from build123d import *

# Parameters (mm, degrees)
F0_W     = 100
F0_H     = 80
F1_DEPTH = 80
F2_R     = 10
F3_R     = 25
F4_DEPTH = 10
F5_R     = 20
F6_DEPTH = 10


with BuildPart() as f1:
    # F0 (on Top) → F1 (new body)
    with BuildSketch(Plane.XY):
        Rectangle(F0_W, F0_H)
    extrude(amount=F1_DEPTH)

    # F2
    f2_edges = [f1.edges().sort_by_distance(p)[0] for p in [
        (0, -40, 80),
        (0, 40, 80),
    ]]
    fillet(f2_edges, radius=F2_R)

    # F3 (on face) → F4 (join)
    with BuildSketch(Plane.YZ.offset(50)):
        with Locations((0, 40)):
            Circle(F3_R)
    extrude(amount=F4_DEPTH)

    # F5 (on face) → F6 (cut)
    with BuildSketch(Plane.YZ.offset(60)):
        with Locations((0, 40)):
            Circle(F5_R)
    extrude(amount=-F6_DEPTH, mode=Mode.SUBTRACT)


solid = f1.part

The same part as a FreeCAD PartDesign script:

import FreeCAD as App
import Part
import Sketcher


def edges_at(feature, points):
    """Names of the edges that pass closest to the given points."""
    edges = feature.Shape.Edges
    near = lambda p: min(range(len(edges)), key=lambda i: edges[i].distToShape(Part.Vertex(*p))[0])
    return sorted({f"Edge{near(p) + 1}" for p in points})

doc = App.newDocument("Part")
body = doc.addObject("PartDesign::Body", "Body")

sketch1 = body.newObject("Sketcher::SketchObject", "Sketch")
sketch1.AttachmentSupport = (doc.getObject("XY_Plane"), [""])
sketch1.MapMode = "FlatFace"
sketch1.addGeometry([
    Part.LineSegment(App.Vector(-50, 40, 0), App.Vector(-50, -40, 0)),
    Part.LineSegment(App.Vector(-50, -40, 0), App.Vector(50, -40, 0)),
    Part.LineSegment(App.Vector(50, -40, 0), App.Vector(50, 40, 0)),
    Part.LineSegment(App.Vector(50, 40, 0), App.Vector(-50, 40, 0)),
], False)
sketch1.addConstraint([
    Sketcher.Constraint("Coincident", 0, 2, 1, 1),
    Sketcher.Constraint("Coincident", 1, 2, 2, 1),
    Sketcher.Constraint("Coincident", 2, 2, 3, 1),
    Sketcher.Constraint("Coincident", 3, 2, 0, 1),
    Sketcher.Constraint("Vertical", 0),
    Sketcher.Constraint("Horizontal", 1),
    Sketcher.Constraint("Vertical", 2),
    Sketcher.Constraint("Horizontal", 3),
    Sketcher.Constraint("Symmetric", 0, 2, 2, 2, -1, 1),
    Sketcher.Constraint("DistanceX", 1, 1, 1, 2, 100.0),
    Sketcher.Constraint("DistanceY", 0, 2, 0, 1, 80.0),
])
pad1 = body.newObject("PartDesign::Pad", "Pad")
pad1.Profile = sketch1
pad1.Length = 80
doc.recompute()

fillet = body.newObject("PartDesign::Fillet", "Fillet")
fillet.Base = (pad1, edges_at(pad1, [(0, -40, 80), (0, 40, 80)]))
fillet.Radius = 10

sketch2 = body.newObject("Sketcher::SketchObject", "Sketch001")
sketch2.AttachmentSupport = (doc.getObject("YZ_Plane"), [""])
sketch2.MapMode = "FlatFace"
sketch2.AttachmentOffset = App.Placement(App.Vector(0, 0, 50), App.Rotation())
sketch2.addGeometry(Part.Circle(App.Vector(0, 40, 0), App.Vector(0, 0, 1), 25), False)
sketch2.addConstraint([
    Sketcher.Constraint("PointOnObject", 0, 3, -2),
    Sketcher.Constraint("Diameter", 0, 50.0),
    Sketcher.Constraint("DistanceY", -1, 1, 0, 3, 40.0),
])
pad2 = body.newObject("PartDesign::Pad", "Pad001")
pad2.Profile = sketch2
pad2.Length = 10

sketch3 = body.newObject("Sketcher::SketchObject", "Sketch002")
sketch3.AttachmentSupport = (doc.getObject("YZ_Plane"), [""])
sketch3.MapMode = "FlatFace"
sketch3.AttachmentOffset = App.Placement(App.Vector(0, 0, 60), App.Rotation())
sketch3.addGeometry(Part.Circle(App.Vector(0, 40, 0), App.Vector(0, 0, 1), 20), False)
sketch3.addConstraint([
    Sketcher.Constraint("PointOnObject", 0, 3, -2),
    Sketcher.Constraint("Diameter", 0, 40.0),
    Sketcher.Constraint("DistanceY", -1, 1, 0, 3, 40.0),
])
pocket1 = body.newObject("PartDesign::Pocket", "Pocket")
pocket1.Profile = sketch3
pocket1.Length = 10

doc.recompute()
